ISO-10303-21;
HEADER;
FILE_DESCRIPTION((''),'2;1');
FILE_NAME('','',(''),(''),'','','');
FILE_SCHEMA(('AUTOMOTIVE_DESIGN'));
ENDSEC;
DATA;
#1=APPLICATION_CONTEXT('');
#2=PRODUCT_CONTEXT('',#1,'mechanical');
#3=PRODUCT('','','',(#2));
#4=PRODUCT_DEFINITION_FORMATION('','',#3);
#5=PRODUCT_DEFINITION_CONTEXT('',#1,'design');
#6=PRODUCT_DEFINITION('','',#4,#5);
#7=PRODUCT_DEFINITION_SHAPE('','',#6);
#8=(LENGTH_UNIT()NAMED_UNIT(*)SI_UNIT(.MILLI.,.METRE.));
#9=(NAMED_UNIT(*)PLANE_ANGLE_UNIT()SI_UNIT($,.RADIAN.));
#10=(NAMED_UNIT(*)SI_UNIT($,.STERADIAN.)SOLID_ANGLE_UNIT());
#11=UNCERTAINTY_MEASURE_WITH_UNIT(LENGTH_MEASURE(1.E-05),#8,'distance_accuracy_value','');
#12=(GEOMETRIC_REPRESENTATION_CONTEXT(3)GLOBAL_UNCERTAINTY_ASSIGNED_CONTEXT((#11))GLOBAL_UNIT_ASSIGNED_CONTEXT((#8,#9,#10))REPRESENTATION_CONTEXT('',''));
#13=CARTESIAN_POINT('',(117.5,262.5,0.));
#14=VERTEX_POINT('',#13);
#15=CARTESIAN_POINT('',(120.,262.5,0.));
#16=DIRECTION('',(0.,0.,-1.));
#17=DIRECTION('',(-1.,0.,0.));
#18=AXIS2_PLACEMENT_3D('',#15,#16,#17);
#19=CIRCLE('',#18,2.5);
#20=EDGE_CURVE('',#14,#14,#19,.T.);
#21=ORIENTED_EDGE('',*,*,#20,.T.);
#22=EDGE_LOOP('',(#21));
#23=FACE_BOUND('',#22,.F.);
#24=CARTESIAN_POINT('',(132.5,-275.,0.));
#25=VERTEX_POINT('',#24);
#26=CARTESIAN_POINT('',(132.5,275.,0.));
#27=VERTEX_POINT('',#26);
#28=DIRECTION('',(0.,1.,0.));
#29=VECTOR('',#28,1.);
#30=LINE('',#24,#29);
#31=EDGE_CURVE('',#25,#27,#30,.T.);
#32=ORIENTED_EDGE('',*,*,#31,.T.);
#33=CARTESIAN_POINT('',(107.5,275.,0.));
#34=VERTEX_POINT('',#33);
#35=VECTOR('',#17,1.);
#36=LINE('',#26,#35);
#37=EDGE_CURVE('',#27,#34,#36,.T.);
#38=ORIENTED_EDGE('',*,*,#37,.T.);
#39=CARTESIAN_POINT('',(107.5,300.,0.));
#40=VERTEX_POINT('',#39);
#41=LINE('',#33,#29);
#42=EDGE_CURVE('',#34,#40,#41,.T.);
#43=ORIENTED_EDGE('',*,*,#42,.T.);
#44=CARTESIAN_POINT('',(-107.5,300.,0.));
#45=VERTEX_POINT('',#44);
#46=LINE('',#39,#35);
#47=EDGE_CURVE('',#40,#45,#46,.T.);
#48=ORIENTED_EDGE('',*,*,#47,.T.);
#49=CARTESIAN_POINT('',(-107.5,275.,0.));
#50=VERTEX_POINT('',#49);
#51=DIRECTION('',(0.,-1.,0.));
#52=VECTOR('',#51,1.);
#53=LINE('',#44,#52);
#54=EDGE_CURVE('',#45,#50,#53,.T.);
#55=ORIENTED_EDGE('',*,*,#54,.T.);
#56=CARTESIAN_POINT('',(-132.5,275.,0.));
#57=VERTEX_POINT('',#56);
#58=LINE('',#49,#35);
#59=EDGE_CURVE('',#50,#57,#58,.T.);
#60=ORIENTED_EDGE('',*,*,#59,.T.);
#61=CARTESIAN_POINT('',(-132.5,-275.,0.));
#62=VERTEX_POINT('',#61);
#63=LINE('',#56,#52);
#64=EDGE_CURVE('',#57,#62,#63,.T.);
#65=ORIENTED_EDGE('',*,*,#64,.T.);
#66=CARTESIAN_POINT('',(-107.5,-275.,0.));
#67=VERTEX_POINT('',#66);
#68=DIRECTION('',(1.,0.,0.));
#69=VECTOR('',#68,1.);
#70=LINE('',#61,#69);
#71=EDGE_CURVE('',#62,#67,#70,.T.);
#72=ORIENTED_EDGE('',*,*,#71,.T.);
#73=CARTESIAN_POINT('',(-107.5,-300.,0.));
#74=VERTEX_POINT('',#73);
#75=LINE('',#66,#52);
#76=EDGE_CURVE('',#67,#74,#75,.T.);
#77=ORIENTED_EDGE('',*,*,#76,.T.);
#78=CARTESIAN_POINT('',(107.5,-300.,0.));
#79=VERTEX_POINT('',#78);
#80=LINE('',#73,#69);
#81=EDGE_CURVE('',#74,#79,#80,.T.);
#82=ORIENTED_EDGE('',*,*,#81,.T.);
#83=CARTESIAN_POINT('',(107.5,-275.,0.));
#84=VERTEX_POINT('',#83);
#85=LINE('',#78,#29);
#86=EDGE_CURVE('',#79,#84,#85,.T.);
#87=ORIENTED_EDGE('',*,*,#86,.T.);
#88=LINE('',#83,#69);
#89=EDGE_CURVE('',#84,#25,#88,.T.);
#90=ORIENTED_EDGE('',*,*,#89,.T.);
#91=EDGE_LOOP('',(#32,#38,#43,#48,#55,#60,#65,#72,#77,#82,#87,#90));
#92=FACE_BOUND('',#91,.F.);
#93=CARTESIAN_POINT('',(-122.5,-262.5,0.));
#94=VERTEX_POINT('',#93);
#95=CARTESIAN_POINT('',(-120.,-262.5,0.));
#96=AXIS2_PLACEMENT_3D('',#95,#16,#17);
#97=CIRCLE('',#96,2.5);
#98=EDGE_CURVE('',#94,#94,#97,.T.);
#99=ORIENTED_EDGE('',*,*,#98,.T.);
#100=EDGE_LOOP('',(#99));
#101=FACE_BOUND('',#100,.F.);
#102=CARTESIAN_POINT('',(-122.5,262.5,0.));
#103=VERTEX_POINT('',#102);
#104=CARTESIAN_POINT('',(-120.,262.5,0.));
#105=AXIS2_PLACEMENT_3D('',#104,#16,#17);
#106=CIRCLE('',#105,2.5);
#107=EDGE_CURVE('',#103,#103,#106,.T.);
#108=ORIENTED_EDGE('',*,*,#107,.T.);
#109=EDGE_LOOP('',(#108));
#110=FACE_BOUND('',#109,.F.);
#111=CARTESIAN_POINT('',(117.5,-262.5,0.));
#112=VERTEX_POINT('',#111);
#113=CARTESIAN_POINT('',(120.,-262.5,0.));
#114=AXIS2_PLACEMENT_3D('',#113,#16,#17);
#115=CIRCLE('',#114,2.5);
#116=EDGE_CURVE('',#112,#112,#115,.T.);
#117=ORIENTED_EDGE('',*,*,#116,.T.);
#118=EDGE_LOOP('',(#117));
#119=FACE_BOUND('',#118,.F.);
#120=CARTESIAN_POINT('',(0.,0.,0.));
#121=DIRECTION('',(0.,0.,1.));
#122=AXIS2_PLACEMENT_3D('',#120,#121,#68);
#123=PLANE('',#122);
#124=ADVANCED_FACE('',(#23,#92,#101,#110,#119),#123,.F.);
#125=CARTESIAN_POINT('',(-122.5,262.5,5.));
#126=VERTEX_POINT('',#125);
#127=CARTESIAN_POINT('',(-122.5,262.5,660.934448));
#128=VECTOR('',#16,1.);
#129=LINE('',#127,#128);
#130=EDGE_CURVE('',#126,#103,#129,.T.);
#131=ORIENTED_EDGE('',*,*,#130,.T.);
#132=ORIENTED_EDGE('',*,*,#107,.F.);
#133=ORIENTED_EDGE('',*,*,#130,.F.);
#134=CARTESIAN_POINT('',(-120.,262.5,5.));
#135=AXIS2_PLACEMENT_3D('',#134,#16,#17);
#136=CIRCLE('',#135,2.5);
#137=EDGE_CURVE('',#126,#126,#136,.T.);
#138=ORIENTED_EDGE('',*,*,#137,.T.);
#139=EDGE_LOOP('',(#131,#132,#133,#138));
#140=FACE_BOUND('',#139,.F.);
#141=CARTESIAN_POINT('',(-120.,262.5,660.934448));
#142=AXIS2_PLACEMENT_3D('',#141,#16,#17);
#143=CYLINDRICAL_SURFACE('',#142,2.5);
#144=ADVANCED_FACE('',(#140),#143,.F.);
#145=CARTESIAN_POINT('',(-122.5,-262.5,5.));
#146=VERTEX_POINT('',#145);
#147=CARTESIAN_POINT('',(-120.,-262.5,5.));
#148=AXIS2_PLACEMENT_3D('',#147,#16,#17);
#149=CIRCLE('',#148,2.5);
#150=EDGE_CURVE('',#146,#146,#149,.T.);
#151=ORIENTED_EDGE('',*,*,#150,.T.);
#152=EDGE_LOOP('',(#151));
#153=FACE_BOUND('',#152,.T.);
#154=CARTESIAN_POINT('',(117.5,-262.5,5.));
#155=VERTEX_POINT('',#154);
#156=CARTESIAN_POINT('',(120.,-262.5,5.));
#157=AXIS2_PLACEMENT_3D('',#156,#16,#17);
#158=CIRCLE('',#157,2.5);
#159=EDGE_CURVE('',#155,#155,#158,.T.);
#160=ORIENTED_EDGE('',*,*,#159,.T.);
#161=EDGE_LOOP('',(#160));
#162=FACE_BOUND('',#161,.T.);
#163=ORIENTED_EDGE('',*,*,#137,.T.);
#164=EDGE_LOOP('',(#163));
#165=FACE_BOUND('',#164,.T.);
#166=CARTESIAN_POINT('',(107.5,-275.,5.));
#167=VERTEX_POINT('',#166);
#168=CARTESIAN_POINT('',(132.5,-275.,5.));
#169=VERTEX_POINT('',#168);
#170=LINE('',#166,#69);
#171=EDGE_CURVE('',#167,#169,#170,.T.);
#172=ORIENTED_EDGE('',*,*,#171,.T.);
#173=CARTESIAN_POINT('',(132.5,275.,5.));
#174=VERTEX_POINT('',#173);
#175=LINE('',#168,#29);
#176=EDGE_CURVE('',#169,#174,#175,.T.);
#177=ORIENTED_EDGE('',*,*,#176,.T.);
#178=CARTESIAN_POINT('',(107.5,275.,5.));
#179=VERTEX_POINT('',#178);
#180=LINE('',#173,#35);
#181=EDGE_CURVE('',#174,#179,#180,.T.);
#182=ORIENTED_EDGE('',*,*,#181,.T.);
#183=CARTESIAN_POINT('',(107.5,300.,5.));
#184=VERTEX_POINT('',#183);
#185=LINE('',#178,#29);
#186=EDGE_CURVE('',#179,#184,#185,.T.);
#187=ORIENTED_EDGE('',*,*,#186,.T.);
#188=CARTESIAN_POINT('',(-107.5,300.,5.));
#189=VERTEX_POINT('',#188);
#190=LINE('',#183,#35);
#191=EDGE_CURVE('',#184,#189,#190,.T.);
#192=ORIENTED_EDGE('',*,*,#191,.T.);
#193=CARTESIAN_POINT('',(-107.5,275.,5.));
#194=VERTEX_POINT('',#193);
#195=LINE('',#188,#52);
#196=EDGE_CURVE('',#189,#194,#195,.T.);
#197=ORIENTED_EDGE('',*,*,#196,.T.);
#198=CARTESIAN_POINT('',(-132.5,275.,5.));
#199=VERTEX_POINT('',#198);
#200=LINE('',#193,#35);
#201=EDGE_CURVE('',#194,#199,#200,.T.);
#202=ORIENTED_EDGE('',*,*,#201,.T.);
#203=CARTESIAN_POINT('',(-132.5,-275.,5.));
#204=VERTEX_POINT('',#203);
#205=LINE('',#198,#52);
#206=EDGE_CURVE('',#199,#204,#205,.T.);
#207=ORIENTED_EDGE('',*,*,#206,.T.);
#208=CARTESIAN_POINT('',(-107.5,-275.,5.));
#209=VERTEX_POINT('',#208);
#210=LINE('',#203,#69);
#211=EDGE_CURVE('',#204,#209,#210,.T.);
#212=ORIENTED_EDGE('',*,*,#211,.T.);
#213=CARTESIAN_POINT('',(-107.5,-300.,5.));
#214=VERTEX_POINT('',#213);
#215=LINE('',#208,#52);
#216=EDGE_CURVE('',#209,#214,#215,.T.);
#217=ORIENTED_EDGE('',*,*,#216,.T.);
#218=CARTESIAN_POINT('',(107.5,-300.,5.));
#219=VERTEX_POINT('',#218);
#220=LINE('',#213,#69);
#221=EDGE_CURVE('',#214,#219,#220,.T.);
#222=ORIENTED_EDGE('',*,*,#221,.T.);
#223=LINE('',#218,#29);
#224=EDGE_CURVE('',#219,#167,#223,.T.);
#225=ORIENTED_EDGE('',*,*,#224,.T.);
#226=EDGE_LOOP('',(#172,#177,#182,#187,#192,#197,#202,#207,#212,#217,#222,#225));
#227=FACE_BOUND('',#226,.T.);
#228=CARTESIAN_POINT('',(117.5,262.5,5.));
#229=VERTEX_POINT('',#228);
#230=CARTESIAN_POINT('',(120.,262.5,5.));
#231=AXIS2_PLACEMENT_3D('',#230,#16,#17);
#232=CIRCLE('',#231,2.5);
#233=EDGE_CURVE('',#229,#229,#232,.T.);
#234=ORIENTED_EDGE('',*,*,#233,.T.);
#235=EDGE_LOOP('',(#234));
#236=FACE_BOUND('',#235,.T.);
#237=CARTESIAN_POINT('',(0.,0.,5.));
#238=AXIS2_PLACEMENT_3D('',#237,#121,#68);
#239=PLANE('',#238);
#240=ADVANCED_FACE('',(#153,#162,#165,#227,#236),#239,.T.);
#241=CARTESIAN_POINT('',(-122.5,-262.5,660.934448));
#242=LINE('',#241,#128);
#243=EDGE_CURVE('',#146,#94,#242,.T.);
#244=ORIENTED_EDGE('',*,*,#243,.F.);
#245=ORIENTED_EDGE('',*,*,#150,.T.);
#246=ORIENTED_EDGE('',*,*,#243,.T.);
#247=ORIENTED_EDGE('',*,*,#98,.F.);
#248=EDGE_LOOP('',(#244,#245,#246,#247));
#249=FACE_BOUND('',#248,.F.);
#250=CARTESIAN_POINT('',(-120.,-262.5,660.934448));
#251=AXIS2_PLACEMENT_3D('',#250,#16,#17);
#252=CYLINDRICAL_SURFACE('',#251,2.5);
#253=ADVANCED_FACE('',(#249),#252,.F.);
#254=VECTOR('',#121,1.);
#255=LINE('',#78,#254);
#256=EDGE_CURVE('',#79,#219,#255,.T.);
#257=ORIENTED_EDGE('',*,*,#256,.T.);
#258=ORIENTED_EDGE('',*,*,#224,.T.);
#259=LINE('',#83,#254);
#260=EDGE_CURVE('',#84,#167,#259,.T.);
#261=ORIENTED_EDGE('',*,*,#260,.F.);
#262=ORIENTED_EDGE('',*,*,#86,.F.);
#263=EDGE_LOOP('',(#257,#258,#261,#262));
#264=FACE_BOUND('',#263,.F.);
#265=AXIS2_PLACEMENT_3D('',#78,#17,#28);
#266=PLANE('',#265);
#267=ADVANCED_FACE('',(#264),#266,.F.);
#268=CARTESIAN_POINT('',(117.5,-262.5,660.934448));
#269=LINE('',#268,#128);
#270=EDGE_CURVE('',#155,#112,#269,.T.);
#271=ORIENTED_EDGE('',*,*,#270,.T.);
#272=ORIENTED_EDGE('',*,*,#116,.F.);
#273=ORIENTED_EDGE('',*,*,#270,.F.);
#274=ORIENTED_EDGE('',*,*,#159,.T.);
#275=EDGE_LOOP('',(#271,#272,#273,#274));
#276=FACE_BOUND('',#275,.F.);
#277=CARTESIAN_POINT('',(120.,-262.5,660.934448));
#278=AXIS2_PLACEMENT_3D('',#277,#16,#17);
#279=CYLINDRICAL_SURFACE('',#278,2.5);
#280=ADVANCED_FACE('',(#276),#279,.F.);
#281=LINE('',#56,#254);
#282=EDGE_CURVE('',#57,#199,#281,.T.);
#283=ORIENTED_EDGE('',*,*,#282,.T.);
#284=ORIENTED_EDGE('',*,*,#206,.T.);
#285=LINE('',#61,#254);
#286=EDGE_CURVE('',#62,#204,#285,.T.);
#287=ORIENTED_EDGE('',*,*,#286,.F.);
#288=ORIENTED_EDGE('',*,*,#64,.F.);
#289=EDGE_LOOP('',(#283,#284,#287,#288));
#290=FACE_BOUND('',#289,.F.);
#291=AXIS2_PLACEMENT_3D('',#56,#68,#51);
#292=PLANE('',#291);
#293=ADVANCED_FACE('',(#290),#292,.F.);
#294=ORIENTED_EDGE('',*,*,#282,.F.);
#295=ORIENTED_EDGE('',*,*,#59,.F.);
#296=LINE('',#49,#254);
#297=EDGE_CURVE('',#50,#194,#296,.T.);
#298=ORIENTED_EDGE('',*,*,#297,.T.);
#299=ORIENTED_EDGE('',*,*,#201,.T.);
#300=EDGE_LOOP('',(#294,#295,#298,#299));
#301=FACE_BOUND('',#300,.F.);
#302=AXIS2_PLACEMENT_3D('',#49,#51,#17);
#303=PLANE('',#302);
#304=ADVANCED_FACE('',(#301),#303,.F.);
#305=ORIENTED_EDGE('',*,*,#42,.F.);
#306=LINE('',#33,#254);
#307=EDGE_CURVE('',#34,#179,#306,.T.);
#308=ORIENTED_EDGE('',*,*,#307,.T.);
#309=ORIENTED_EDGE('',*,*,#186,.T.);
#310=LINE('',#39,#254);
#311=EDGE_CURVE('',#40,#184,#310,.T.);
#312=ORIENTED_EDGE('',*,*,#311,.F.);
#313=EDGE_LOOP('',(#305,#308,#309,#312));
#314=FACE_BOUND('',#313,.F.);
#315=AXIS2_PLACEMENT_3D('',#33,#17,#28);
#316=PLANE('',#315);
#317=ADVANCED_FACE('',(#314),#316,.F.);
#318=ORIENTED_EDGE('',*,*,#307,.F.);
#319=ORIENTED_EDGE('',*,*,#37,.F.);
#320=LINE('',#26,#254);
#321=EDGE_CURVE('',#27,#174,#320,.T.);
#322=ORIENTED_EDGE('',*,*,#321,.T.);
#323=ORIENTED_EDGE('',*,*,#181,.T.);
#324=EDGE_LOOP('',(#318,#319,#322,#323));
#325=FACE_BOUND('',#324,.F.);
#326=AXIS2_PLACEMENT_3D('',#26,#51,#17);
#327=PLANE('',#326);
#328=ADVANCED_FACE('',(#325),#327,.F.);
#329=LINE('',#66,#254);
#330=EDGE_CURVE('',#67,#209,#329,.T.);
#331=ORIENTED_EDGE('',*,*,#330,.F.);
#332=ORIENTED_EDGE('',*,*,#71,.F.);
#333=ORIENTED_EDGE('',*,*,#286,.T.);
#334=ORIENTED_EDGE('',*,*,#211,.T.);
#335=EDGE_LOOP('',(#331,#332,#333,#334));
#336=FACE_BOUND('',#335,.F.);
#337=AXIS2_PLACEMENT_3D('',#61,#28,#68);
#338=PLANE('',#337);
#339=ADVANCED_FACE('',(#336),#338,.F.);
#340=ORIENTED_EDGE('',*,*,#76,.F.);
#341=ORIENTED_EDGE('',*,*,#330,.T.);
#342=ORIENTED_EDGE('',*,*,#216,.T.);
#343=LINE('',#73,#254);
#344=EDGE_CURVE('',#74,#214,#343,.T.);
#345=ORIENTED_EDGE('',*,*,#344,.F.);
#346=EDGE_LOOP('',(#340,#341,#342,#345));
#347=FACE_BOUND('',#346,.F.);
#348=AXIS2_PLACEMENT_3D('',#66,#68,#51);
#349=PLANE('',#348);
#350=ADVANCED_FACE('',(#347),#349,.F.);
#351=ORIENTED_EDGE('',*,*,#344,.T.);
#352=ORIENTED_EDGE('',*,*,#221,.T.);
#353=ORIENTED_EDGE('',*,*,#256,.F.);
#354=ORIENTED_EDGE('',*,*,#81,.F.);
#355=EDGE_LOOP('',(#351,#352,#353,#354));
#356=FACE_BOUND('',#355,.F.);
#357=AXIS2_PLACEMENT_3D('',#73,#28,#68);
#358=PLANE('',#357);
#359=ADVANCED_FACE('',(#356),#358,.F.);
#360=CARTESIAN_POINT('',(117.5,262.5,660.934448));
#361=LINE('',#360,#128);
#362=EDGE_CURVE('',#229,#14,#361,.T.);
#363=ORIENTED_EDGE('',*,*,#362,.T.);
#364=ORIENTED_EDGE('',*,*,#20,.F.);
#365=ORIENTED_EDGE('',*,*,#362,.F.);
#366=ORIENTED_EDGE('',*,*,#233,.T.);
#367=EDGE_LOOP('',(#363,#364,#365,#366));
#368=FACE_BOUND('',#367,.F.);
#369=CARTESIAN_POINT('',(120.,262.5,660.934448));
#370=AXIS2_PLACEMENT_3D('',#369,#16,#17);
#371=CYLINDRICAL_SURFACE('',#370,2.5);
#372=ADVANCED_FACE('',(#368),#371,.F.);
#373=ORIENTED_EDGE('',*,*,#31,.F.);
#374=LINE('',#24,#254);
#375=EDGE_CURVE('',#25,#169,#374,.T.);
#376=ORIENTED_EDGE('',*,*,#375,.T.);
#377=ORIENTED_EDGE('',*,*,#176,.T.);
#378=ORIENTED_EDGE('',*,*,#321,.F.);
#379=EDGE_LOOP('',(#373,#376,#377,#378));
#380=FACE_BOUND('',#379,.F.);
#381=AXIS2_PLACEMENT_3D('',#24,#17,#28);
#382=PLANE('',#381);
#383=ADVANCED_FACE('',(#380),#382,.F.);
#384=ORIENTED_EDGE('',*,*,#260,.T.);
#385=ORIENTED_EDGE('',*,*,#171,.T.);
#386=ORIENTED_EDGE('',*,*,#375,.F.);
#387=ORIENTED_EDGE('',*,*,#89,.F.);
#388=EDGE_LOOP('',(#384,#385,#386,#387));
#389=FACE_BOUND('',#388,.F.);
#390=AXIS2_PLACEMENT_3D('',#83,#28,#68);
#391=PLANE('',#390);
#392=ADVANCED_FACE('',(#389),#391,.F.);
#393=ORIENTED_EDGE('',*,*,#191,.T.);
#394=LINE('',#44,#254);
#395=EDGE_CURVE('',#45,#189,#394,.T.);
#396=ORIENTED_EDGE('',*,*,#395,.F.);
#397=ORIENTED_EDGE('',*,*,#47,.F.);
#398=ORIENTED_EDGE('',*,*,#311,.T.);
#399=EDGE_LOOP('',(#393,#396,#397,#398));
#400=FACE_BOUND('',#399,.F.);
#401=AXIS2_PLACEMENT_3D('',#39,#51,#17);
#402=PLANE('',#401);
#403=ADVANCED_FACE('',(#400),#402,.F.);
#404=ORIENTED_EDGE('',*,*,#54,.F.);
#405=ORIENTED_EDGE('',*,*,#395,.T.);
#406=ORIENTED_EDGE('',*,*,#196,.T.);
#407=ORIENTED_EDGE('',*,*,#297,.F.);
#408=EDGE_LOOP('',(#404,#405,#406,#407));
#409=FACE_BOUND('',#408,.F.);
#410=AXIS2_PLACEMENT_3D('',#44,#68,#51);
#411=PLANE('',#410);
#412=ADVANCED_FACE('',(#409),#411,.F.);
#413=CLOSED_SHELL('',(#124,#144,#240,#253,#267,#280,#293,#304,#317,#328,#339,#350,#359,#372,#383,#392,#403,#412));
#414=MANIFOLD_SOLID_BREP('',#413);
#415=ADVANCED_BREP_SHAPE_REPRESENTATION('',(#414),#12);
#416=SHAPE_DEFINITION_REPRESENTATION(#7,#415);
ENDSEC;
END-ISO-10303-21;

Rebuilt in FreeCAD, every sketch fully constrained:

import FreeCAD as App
import Part
import Sketcher

V = App.Vector
Q = App.Units.Quantity


def add_polygon(sketch, points):
    """Adds a closed chain of lines whose ends are joined by coincident constraints."""
    first, n = sketch.GeometryCount, len(points)
    for a, b in zip(points, points[1:] + points[:1]):
        sketch.addGeometry(Part.LineSegment(App.Vector(*a, 0), App.Vector(*b, 0)), False)
    for i in range(n):
        sketch.addConstraint(Sketcher.Constraint("Coincident", first + i, 2, first + (i + 1) % n, 1))

doc = App.newDocument("Part")
body = doc.addObject("PartDesign::Body", "Body")

# Sketch on XY plane
sketch1 = body.newObject("Sketcher::SketchObject", "Sketch")
sketch1.AttachmentSupport = (doc.getObject("XY_Plane"), [""])
sketch1.MapMode = "FlatFace"
add_polygon(sketch1, [(108, 275), (108, 300), (-108, 300), (-108, 275), (-132, 275), (-132, -275), (-108, -275), (-108, -300), (108, -300), (108, -275), (132, -275), (132, 275)])  # lines 0-11
sketch1.addConstraint([
    Sketcher.Constraint("Vertical", 0),
    Sketcher.Constraint("Horizontal", 1),
    Sketcher.Constraint("Vertical", 2),
    Sketcher.Constraint("Horizontal", 3),
    Sketcher.Constraint("Vertical", 4),
    Sketcher.Constraint("Horizontal", 5),
    Sketcher.Constraint("Vertical", 6),
    Sketcher.Constraint("Horizontal", 7),
    Sketcher.Constraint("Vertical", 8),
    Sketcher.Constraint("Horizontal", 9),
    Sketcher.Constraint("Vertical", 10),
    Sketcher.Constraint("Horizontal", 11),
    Sketcher.Constraint("Symmetric", 0, 2, 6, 2, -1, 1),
    Sketcher.Constraint("Symmetric", 2, 2, 8, 2, -1, 1),
    Sketcher.Constraint("Symmetric", 4, 2, 10, 2, -1, 1),
    Sketcher.Constraint("Symmetric", 5, 2, 8, 2, -2),
    Sketcher.Constraint("Equal", 11, 0),
    Sketcher.Constraint("DistanceX", 1, 2, 1, 1, Q("215 mm")),
    Sketcher.Constraint("DistanceX", 3, 2, 3, 1, Q("25 mm")),
    Sketcher.Constraint("DistanceY", 4, 2, 4, 1, Q("550 mm")),
])
pad1 = body.newObject("PartDesign::Pad", "Pad")
pad1.Profile = sketch1
pad1.Length = 5

# Sketch on XY plane
sketch2 = body.newObject("Sketcher::SketchObject", "Sketch001")
sketch2.AttachmentSupport = (doc.getObject("XY_Plane"), [""])
sketch2.MapMode = "FlatFace"
sketch2.AttachmentOffset = App.Placement(V(0, 0, 5), App.Rotation())
sketch2.addGeometry([
    Part.Circle(V(-120, 262.5, 0), V(0, 0, 1), 2.5),
    Part.Circle(V(120, 262.5, 0), V(0, 0, 1), 2.5),
    Part.Circle(V(-120, -262.5, 0), V(0, 0, 1), 2.5),
    Part.Circle(V(120, -262.5, 0), V(0, 0, 1), 2.5),
], False)
sketch2.addConstraint([
    Sketcher.Constraint("Equal", 0, 1),
    Sketcher.Constraint("Equal", 1, 2),
    Sketcher.Constraint("Equal", 2, 3),
    Sketcher.Constraint("Symmetric", 1, 3, 2, 3, -1, 1),
    Sketcher.Constraint("Symmetric", 0, 3, 3, 3, -1, 1),
    Sketcher.Constraint("Symmetric", 0, 3, 1, 3, -2),
    Sketcher.Constraint("Diameter", 0, Q("5 mm")),
    Sketcher.Constraint("DistanceX", 0, 3, -1, 1, Q("120 mm")),
    Sketcher.Constraint("DistanceY", 2, 3, 0, 3, Q("525 mm")),
])
doc.recompute()
hole = body.newObject("PartDesign::Hole", "Hole")
hole.Profile = sketch2
hole.ThreadType = "None"
hole.Diameter = 5
hole.DepthType = "ThroughAll"

doc.recompute()
